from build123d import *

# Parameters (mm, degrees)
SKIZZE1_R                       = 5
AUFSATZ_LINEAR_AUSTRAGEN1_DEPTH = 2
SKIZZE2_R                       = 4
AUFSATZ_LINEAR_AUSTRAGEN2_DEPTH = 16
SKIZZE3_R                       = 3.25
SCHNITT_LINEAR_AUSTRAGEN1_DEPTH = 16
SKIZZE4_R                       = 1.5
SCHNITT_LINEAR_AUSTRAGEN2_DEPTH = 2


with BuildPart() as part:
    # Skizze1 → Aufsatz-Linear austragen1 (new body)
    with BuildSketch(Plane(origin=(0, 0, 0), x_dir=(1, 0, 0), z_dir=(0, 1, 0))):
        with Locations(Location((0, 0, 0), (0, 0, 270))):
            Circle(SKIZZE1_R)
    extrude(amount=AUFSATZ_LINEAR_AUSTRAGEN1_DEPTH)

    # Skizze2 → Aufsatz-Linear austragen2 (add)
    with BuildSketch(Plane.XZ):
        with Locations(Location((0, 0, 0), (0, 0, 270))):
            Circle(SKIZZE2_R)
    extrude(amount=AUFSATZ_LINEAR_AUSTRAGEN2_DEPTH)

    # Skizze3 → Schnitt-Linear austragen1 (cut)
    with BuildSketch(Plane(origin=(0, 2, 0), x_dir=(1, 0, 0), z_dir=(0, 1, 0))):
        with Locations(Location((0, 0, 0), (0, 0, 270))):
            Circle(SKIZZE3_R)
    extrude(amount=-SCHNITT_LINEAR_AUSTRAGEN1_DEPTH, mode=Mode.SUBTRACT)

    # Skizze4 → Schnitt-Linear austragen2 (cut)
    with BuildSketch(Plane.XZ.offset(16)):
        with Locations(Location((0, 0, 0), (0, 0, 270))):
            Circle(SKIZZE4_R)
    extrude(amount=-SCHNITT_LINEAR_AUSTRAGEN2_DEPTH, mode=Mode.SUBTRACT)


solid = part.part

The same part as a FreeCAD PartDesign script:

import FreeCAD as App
import Part
import Sketcher
from FreeCAD import Vector
Q = App.Units.Quantity

doc = App.newDocument("Part")
params = doc.addObject("Spreadsheet::Sheet", "Params")
for row, (alias, value) in enumerate([
    ("sketch1_diameter", "10 mm"),
    ("pad1_length", "2 mm"),
    ("sketch2_diameter", "8 mm"),
    ("pad2_length", "16 mm"),
    ("sketch3_diameter", "6.5 mm"),
    ("pocket1_length", "16 mm"),
    ("sketch4_diameter", "3 mm"),
    ("pocket2_length", "2 mm"),
], start=1):
    params.set(f"A{row}", alias)
    params.set(f"B{row}", "=" + value)
    params.setAlias(f"B{row}", alias)

body = doc.addObject("PartDesign::Body", "Body")

# Sketch on XZ plane
sketch1 = doc.addObject("Sketcher::SketchObject", "Sketch")
body.addObject(sketch1)
sketch1.AttachmentSupport = (doc.XZ_Plane, [""])
sketch1.MapMode = "FlatFace"
sketch1.addGeometry(Part.Circle(Vector(0, 0, 0), Vector(0, 0, 1), 5), False)
sketch1.addConstraint([
    Sketcher.Constraint("Coincident", 0, 3, -1, 1),
    Sketcher.Constraint("Diameter", 0, Q("10 mm")),
])
sketch1.setExpression("Constraints[1]", "Params.sketch1_diameter")
pad1 = doc.addObject("PartDesign::Pad", "Pad")
body.addObject(pad1)
pad1.Profile = sketch1
pad1.setExpression("Length", "Params.pad1_length")
pad1.Reversed = True

# Sketch on XZ plane
sketch2 = doc.addObject("Sketcher::SketchObject", "Sketch001")
body.addObject(sketch2)
sketch2.AttachmentSupport = (doc.XZ_Plane, [""])
sketch2.MapMode = "FlatFace"
sketch2.addGeometry(Part.Circle(Vector(0, 0, 0), Vector(0, 0, 1), 4), False)
sketch2.addConstraint([
    Sketcher.Constraint("Coincident", 0, 3, -1, 1),
    Sketcher.Constraint("Diameter", 0, Q("8 mm")),
])
sketch2.setExpression("Constraints[1]", "Params.sketch2_diameter")
pad2 = doc.addObject("PartDesign::Pad", "Pad001")
body.addObject(pad2)
pad2.Profile = sketch2
pad2.setExpression("Length", "Params.pad2_length")

# Sketch on XZ plane
sketch3 = doc.addObject("Sketcher::SketchObject", "Sketch002")
body.addObject(sketch3)
sketch3.AttachmentSupport = (doc.XZ_Plane, [""])
sketch3.MapMode = "FlatFace"
sketch3.AttachmentOffset = App.Placement(Vector(0, 0, -2), App.Rotation())
sketch3.addGeometry(Part.Circle(Vector(0, 0, 0), Vector(0, 0, 1), 3.2), False)
sketch3.addConstraint([
    Sketcher.Constraint("Coincident", 0, 3, -1, 1),
    Sketcher.Constraint("Diameter", 0, Q("6.5 mm")),
])
sketch3.setExpression("Constraints[1]", "Params.sketch3_diameter")
pocket1 = doc.addObject("PartDesign::Pocket", "Pocket")
body.addObject(pocket1)
pocket1.Profile = sketch3
pocket1.setExpression("Length", "Params.pocket1_length")
pocket1.Reversed = True

# Sketch on XZ plane
sketch4 = doc.addObject("Sketcher::SketchObject", "Sketch003")
body.addObject(sketch4)
sketch4.AttachmentSupport = (doc.XZ_Plane, [""])
sketch4.MapMode = "FlatFace"
sketch4.AttachmentOffset = App.Placement(Vector(0, 0, 16), App.Rotation())
sketch4.addGeometry(Part.Circle(Vector(0, 0, 0), Vector(0, 0, 1), 1.5), False)
sketch4.addConstraint([
    Sketcher.Constraint("Coincident", 0, 3, -1, 1),
    Sketcher.Constraint("Diameter", 0, Q("3 mm")),
])
sketch4.setExpression("Constraints[1]", "Params.sketch4_diameter")
pocket2 = doc.addObject("PartDesign::Pocket", "Pocket001")
body.addObject(pocket2)
pocket2.Profile = sketch4
pocket2.setExpression("Length", "Params.pocket2_length")

doc.recompute()
